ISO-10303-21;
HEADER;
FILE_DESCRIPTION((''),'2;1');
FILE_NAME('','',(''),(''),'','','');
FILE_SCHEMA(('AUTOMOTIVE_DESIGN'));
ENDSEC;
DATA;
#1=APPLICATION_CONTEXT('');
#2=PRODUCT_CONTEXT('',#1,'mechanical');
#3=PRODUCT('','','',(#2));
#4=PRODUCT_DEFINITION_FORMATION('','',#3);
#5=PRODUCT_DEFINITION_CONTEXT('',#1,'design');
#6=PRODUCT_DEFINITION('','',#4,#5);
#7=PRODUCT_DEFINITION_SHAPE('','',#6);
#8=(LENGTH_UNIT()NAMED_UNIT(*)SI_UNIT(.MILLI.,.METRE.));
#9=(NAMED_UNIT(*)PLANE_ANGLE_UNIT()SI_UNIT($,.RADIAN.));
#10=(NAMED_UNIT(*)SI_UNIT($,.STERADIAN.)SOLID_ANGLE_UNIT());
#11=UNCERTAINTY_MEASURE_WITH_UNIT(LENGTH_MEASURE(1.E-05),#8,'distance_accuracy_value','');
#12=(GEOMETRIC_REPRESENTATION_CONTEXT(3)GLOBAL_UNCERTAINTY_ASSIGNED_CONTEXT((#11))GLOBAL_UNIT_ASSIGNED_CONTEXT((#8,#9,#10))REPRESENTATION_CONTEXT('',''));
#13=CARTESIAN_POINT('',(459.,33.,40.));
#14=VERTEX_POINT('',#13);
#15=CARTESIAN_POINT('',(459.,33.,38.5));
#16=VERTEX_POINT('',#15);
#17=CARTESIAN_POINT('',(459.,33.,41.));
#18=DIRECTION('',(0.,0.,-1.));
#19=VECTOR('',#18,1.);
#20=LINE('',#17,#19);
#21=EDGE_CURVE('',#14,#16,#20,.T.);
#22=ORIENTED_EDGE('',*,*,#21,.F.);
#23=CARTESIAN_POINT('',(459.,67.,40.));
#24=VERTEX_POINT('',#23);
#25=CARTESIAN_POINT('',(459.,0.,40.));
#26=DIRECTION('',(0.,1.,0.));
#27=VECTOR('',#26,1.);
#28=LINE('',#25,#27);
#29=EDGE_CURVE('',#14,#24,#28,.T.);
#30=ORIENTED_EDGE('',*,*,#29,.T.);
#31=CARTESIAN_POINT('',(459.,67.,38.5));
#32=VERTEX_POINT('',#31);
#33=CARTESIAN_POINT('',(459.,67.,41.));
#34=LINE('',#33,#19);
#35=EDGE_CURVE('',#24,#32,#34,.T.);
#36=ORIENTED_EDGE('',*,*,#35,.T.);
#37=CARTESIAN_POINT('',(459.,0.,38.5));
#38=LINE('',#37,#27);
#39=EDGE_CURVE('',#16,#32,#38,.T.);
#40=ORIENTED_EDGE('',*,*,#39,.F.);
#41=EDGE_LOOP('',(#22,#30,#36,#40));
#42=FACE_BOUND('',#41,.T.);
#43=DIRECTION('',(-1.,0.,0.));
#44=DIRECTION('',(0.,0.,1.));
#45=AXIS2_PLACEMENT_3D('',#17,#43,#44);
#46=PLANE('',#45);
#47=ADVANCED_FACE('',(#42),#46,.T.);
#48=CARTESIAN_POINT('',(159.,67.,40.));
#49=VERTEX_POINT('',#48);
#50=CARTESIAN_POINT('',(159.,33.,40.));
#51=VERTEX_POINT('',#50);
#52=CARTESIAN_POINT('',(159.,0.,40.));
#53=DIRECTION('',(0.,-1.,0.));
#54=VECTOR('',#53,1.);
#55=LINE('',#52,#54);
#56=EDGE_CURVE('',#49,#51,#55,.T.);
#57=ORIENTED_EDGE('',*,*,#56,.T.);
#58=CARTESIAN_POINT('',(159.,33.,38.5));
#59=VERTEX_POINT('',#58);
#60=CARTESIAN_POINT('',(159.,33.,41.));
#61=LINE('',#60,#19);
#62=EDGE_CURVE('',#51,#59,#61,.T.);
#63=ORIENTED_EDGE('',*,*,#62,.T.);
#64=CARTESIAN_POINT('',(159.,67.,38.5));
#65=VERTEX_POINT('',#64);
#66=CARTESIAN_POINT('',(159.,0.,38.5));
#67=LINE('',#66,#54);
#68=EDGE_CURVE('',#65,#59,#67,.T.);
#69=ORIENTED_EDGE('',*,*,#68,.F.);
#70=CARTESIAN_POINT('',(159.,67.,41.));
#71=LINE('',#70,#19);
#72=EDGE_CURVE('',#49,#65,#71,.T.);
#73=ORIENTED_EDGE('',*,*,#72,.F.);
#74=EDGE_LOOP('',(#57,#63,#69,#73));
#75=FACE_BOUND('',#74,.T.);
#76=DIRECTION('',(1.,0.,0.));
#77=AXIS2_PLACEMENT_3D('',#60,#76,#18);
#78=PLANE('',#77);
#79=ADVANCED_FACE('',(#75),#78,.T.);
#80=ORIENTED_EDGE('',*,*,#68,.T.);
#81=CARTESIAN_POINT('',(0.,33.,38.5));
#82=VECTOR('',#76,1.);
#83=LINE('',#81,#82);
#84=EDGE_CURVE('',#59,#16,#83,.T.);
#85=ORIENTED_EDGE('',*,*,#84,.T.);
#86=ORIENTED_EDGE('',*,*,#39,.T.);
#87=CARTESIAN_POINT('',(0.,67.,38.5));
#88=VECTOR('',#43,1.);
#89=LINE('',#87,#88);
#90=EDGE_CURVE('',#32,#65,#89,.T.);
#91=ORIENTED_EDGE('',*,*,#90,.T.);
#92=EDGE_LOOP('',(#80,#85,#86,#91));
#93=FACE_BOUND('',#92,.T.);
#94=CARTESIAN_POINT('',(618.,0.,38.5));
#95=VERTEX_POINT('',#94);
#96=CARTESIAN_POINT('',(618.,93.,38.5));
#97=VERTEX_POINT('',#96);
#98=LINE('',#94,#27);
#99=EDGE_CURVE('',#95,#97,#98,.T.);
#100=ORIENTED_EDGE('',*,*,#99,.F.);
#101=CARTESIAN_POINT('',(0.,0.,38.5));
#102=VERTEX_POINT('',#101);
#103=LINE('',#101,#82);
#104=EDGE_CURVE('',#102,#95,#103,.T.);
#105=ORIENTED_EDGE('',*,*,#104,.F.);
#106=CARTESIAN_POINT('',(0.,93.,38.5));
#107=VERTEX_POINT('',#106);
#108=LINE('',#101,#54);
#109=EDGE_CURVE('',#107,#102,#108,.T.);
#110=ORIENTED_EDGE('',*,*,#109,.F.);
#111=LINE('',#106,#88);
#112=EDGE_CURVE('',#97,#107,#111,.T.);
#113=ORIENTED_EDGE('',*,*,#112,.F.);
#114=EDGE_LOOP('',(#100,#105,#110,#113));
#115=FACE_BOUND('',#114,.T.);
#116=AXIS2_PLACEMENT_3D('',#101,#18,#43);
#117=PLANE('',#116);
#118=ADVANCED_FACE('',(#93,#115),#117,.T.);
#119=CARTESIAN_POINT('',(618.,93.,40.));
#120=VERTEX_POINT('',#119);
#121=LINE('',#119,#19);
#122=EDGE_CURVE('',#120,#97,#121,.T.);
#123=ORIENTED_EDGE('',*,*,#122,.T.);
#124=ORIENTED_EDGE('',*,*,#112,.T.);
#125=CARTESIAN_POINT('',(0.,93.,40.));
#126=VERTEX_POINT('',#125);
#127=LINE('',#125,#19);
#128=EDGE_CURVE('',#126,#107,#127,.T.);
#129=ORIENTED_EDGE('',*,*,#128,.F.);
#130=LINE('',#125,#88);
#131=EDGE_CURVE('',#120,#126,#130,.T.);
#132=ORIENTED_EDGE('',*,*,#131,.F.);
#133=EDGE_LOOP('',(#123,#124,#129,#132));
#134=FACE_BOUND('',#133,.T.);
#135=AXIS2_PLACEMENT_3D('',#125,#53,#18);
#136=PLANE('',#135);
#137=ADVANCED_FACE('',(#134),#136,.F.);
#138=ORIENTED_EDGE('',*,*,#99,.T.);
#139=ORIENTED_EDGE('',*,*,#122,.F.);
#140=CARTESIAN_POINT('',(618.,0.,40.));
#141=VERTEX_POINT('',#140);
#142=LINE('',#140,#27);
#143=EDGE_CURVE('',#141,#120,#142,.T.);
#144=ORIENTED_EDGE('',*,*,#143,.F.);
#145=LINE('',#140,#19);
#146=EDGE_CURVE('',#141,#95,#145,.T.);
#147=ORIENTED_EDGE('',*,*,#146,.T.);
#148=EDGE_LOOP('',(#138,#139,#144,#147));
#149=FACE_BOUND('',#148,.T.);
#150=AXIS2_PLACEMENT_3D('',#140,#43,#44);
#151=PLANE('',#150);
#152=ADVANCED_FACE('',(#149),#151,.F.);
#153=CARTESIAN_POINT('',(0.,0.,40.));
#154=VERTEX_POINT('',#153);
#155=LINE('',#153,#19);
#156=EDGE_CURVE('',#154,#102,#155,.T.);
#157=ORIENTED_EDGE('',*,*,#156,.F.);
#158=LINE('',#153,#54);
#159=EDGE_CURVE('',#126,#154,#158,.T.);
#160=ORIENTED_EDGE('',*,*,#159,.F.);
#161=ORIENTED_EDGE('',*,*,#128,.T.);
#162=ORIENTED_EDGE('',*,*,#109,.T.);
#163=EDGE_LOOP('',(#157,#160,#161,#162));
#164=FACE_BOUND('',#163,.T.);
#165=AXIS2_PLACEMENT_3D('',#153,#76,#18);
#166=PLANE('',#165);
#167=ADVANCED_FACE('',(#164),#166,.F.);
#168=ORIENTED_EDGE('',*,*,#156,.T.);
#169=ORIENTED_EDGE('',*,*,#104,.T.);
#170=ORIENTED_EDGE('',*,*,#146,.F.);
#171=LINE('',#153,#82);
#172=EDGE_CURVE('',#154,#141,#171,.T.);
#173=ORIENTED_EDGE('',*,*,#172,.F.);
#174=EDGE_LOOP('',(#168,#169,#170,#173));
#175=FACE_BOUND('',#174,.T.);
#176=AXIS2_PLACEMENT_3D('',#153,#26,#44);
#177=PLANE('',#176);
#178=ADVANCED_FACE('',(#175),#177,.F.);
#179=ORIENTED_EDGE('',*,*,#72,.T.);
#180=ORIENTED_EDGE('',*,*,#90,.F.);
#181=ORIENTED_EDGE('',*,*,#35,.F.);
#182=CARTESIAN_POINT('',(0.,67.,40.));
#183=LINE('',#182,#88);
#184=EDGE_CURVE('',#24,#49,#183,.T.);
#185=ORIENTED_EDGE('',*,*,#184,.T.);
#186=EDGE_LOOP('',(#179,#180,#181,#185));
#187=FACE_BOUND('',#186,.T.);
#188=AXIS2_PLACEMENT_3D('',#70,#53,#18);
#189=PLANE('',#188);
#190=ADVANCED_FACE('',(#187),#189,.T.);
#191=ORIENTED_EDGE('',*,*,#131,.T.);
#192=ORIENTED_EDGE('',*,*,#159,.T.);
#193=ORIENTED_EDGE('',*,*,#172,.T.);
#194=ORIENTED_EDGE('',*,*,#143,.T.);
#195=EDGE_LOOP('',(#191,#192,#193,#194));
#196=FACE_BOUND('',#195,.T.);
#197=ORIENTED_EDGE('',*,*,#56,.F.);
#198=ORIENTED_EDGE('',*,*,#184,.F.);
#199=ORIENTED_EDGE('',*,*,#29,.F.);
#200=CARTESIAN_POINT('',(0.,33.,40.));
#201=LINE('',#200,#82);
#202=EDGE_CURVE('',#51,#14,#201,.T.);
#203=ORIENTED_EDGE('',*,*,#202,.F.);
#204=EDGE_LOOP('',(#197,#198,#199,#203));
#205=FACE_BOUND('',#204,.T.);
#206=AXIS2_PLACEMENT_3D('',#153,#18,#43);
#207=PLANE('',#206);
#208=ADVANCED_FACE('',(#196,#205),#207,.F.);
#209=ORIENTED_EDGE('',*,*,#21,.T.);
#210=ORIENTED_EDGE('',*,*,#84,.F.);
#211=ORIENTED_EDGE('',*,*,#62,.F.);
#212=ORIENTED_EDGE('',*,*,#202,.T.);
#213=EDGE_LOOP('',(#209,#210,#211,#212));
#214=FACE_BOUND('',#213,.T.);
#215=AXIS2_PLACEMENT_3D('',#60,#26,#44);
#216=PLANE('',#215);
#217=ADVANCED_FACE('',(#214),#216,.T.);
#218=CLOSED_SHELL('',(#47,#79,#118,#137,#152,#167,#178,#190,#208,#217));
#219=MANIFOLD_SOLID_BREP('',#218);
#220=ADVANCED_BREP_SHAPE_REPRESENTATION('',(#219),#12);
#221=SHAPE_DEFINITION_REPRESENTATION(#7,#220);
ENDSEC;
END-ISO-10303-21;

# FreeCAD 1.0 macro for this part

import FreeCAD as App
import Part
import Sketcher
from FreeCAD import Vector


def add_polygon(sketch, points):
    """Adds a closed chain of lines whose ends are joined by coincident constraints."""
    first, n = sketch.GeometryCount, len(points)
    for a, b in zip(points, points[1:] + points[:1]):
        sketch.addGeometry(Part.LineSegment(App.Vector(*a, 0), App.Vector(*b, 0)), False)
    for i in range(n):
        sketch.addConstraint(Sketcher.Constraint("Coincident", first + i, 2, first + (i + 1) % n, 1))

doc = App.newDocument("Part")
body = doc.addObject("PartDesign::Body", "Body")

# Sketch on XY plane
sketch1 = body.newObject("Sketcher::SketchObject", "Sketch")
sketch1.AttachmentSupport = (doc.getObject("XY_Plane"), [""])
sketch1.MapMode = "FlatFace"
sketch1.AttachmentOffset = App.Placement(Vector(0, 0, 38.5), App.Rotation())
add_polygon(sketch1, [(0, 93), (0, 0), (618, 0), (618, 93)])  # lines 0-3
sketch1.addConstraint(Sketcher.Constraint("Vertical", 0))
sketch1.addConstraint(Sketcher.Constraint("Horizontal", 1))
sketch1.addConstraint(Sketcher.Constraint("Vertical", 2))
sketch1.addConstraint(Sketcher.Constraint("Horizontal", 3))
sketch1.addConstraint(Sketcher.Constraint("Coincident", 0, 2, -1, 1))
sketch1.addConstraint(Sketcher.Constraint("DistanceX", 1, 1, 1, 2, 618.0))
sketch1.addConstraint(Sketcher.Constraint("DistanceY", 0, 2, 0, 1, 93.0))
pad1 = body.newObject("PartDesign::Pad", "Pad")
pad1.Profile = sketch1
pad1.Length = 1.5

# Sketch on XY plane
sketch2 = body.newObject("Sketcher::SketchObject", "Sketch001")
sketch2.AttachmentSupport = (doc.getObject("XY_Plane"), [""])
sketch2.MapMode = "FlatFace"
sketch2.AttachmentOffset = App.Placement(Vector(0, 0, 27), App.Rotation())
add_polygon(sketch2, [(159, 67), (159, 33), (459, 33), (459, 67)])  # lines 0-3
sketch2.addConstraint(Sketcher.Constraint("Vertical", 0))
sketch2.addConstraint(Sketcher.Constraint("Horizontal", 1))
sketch2.addConstraint(Sketcher.Constraint("Vertical", 2))
sketch2.addConstraint(Sketcher.Constraint("Horizontal", 3))
sketch2.addConstraint(Sketcher.Constraint("DistanceX", 1, 1, 1, 2, 300.0))
sketch2.addConstraint(Sketcher.Constraint("DistanceY", 0, 2, 0, 1, 34.0))
sketch2.addConstraint(Sketcher.Constraint("DistanceX", -1, 1, 0, 2, 159.0))
sketch2.addConstraint(Sketcher.Constraint("DistanceY", -1, 1, 0, 2, 33.0))
pocket1 = body.newObject("PartDesign::Pocket", "Pocket")
pocket1.Profile = sketch2
pocket1.Length = 14
pocket1.Reversed = True

doc.recompute()
